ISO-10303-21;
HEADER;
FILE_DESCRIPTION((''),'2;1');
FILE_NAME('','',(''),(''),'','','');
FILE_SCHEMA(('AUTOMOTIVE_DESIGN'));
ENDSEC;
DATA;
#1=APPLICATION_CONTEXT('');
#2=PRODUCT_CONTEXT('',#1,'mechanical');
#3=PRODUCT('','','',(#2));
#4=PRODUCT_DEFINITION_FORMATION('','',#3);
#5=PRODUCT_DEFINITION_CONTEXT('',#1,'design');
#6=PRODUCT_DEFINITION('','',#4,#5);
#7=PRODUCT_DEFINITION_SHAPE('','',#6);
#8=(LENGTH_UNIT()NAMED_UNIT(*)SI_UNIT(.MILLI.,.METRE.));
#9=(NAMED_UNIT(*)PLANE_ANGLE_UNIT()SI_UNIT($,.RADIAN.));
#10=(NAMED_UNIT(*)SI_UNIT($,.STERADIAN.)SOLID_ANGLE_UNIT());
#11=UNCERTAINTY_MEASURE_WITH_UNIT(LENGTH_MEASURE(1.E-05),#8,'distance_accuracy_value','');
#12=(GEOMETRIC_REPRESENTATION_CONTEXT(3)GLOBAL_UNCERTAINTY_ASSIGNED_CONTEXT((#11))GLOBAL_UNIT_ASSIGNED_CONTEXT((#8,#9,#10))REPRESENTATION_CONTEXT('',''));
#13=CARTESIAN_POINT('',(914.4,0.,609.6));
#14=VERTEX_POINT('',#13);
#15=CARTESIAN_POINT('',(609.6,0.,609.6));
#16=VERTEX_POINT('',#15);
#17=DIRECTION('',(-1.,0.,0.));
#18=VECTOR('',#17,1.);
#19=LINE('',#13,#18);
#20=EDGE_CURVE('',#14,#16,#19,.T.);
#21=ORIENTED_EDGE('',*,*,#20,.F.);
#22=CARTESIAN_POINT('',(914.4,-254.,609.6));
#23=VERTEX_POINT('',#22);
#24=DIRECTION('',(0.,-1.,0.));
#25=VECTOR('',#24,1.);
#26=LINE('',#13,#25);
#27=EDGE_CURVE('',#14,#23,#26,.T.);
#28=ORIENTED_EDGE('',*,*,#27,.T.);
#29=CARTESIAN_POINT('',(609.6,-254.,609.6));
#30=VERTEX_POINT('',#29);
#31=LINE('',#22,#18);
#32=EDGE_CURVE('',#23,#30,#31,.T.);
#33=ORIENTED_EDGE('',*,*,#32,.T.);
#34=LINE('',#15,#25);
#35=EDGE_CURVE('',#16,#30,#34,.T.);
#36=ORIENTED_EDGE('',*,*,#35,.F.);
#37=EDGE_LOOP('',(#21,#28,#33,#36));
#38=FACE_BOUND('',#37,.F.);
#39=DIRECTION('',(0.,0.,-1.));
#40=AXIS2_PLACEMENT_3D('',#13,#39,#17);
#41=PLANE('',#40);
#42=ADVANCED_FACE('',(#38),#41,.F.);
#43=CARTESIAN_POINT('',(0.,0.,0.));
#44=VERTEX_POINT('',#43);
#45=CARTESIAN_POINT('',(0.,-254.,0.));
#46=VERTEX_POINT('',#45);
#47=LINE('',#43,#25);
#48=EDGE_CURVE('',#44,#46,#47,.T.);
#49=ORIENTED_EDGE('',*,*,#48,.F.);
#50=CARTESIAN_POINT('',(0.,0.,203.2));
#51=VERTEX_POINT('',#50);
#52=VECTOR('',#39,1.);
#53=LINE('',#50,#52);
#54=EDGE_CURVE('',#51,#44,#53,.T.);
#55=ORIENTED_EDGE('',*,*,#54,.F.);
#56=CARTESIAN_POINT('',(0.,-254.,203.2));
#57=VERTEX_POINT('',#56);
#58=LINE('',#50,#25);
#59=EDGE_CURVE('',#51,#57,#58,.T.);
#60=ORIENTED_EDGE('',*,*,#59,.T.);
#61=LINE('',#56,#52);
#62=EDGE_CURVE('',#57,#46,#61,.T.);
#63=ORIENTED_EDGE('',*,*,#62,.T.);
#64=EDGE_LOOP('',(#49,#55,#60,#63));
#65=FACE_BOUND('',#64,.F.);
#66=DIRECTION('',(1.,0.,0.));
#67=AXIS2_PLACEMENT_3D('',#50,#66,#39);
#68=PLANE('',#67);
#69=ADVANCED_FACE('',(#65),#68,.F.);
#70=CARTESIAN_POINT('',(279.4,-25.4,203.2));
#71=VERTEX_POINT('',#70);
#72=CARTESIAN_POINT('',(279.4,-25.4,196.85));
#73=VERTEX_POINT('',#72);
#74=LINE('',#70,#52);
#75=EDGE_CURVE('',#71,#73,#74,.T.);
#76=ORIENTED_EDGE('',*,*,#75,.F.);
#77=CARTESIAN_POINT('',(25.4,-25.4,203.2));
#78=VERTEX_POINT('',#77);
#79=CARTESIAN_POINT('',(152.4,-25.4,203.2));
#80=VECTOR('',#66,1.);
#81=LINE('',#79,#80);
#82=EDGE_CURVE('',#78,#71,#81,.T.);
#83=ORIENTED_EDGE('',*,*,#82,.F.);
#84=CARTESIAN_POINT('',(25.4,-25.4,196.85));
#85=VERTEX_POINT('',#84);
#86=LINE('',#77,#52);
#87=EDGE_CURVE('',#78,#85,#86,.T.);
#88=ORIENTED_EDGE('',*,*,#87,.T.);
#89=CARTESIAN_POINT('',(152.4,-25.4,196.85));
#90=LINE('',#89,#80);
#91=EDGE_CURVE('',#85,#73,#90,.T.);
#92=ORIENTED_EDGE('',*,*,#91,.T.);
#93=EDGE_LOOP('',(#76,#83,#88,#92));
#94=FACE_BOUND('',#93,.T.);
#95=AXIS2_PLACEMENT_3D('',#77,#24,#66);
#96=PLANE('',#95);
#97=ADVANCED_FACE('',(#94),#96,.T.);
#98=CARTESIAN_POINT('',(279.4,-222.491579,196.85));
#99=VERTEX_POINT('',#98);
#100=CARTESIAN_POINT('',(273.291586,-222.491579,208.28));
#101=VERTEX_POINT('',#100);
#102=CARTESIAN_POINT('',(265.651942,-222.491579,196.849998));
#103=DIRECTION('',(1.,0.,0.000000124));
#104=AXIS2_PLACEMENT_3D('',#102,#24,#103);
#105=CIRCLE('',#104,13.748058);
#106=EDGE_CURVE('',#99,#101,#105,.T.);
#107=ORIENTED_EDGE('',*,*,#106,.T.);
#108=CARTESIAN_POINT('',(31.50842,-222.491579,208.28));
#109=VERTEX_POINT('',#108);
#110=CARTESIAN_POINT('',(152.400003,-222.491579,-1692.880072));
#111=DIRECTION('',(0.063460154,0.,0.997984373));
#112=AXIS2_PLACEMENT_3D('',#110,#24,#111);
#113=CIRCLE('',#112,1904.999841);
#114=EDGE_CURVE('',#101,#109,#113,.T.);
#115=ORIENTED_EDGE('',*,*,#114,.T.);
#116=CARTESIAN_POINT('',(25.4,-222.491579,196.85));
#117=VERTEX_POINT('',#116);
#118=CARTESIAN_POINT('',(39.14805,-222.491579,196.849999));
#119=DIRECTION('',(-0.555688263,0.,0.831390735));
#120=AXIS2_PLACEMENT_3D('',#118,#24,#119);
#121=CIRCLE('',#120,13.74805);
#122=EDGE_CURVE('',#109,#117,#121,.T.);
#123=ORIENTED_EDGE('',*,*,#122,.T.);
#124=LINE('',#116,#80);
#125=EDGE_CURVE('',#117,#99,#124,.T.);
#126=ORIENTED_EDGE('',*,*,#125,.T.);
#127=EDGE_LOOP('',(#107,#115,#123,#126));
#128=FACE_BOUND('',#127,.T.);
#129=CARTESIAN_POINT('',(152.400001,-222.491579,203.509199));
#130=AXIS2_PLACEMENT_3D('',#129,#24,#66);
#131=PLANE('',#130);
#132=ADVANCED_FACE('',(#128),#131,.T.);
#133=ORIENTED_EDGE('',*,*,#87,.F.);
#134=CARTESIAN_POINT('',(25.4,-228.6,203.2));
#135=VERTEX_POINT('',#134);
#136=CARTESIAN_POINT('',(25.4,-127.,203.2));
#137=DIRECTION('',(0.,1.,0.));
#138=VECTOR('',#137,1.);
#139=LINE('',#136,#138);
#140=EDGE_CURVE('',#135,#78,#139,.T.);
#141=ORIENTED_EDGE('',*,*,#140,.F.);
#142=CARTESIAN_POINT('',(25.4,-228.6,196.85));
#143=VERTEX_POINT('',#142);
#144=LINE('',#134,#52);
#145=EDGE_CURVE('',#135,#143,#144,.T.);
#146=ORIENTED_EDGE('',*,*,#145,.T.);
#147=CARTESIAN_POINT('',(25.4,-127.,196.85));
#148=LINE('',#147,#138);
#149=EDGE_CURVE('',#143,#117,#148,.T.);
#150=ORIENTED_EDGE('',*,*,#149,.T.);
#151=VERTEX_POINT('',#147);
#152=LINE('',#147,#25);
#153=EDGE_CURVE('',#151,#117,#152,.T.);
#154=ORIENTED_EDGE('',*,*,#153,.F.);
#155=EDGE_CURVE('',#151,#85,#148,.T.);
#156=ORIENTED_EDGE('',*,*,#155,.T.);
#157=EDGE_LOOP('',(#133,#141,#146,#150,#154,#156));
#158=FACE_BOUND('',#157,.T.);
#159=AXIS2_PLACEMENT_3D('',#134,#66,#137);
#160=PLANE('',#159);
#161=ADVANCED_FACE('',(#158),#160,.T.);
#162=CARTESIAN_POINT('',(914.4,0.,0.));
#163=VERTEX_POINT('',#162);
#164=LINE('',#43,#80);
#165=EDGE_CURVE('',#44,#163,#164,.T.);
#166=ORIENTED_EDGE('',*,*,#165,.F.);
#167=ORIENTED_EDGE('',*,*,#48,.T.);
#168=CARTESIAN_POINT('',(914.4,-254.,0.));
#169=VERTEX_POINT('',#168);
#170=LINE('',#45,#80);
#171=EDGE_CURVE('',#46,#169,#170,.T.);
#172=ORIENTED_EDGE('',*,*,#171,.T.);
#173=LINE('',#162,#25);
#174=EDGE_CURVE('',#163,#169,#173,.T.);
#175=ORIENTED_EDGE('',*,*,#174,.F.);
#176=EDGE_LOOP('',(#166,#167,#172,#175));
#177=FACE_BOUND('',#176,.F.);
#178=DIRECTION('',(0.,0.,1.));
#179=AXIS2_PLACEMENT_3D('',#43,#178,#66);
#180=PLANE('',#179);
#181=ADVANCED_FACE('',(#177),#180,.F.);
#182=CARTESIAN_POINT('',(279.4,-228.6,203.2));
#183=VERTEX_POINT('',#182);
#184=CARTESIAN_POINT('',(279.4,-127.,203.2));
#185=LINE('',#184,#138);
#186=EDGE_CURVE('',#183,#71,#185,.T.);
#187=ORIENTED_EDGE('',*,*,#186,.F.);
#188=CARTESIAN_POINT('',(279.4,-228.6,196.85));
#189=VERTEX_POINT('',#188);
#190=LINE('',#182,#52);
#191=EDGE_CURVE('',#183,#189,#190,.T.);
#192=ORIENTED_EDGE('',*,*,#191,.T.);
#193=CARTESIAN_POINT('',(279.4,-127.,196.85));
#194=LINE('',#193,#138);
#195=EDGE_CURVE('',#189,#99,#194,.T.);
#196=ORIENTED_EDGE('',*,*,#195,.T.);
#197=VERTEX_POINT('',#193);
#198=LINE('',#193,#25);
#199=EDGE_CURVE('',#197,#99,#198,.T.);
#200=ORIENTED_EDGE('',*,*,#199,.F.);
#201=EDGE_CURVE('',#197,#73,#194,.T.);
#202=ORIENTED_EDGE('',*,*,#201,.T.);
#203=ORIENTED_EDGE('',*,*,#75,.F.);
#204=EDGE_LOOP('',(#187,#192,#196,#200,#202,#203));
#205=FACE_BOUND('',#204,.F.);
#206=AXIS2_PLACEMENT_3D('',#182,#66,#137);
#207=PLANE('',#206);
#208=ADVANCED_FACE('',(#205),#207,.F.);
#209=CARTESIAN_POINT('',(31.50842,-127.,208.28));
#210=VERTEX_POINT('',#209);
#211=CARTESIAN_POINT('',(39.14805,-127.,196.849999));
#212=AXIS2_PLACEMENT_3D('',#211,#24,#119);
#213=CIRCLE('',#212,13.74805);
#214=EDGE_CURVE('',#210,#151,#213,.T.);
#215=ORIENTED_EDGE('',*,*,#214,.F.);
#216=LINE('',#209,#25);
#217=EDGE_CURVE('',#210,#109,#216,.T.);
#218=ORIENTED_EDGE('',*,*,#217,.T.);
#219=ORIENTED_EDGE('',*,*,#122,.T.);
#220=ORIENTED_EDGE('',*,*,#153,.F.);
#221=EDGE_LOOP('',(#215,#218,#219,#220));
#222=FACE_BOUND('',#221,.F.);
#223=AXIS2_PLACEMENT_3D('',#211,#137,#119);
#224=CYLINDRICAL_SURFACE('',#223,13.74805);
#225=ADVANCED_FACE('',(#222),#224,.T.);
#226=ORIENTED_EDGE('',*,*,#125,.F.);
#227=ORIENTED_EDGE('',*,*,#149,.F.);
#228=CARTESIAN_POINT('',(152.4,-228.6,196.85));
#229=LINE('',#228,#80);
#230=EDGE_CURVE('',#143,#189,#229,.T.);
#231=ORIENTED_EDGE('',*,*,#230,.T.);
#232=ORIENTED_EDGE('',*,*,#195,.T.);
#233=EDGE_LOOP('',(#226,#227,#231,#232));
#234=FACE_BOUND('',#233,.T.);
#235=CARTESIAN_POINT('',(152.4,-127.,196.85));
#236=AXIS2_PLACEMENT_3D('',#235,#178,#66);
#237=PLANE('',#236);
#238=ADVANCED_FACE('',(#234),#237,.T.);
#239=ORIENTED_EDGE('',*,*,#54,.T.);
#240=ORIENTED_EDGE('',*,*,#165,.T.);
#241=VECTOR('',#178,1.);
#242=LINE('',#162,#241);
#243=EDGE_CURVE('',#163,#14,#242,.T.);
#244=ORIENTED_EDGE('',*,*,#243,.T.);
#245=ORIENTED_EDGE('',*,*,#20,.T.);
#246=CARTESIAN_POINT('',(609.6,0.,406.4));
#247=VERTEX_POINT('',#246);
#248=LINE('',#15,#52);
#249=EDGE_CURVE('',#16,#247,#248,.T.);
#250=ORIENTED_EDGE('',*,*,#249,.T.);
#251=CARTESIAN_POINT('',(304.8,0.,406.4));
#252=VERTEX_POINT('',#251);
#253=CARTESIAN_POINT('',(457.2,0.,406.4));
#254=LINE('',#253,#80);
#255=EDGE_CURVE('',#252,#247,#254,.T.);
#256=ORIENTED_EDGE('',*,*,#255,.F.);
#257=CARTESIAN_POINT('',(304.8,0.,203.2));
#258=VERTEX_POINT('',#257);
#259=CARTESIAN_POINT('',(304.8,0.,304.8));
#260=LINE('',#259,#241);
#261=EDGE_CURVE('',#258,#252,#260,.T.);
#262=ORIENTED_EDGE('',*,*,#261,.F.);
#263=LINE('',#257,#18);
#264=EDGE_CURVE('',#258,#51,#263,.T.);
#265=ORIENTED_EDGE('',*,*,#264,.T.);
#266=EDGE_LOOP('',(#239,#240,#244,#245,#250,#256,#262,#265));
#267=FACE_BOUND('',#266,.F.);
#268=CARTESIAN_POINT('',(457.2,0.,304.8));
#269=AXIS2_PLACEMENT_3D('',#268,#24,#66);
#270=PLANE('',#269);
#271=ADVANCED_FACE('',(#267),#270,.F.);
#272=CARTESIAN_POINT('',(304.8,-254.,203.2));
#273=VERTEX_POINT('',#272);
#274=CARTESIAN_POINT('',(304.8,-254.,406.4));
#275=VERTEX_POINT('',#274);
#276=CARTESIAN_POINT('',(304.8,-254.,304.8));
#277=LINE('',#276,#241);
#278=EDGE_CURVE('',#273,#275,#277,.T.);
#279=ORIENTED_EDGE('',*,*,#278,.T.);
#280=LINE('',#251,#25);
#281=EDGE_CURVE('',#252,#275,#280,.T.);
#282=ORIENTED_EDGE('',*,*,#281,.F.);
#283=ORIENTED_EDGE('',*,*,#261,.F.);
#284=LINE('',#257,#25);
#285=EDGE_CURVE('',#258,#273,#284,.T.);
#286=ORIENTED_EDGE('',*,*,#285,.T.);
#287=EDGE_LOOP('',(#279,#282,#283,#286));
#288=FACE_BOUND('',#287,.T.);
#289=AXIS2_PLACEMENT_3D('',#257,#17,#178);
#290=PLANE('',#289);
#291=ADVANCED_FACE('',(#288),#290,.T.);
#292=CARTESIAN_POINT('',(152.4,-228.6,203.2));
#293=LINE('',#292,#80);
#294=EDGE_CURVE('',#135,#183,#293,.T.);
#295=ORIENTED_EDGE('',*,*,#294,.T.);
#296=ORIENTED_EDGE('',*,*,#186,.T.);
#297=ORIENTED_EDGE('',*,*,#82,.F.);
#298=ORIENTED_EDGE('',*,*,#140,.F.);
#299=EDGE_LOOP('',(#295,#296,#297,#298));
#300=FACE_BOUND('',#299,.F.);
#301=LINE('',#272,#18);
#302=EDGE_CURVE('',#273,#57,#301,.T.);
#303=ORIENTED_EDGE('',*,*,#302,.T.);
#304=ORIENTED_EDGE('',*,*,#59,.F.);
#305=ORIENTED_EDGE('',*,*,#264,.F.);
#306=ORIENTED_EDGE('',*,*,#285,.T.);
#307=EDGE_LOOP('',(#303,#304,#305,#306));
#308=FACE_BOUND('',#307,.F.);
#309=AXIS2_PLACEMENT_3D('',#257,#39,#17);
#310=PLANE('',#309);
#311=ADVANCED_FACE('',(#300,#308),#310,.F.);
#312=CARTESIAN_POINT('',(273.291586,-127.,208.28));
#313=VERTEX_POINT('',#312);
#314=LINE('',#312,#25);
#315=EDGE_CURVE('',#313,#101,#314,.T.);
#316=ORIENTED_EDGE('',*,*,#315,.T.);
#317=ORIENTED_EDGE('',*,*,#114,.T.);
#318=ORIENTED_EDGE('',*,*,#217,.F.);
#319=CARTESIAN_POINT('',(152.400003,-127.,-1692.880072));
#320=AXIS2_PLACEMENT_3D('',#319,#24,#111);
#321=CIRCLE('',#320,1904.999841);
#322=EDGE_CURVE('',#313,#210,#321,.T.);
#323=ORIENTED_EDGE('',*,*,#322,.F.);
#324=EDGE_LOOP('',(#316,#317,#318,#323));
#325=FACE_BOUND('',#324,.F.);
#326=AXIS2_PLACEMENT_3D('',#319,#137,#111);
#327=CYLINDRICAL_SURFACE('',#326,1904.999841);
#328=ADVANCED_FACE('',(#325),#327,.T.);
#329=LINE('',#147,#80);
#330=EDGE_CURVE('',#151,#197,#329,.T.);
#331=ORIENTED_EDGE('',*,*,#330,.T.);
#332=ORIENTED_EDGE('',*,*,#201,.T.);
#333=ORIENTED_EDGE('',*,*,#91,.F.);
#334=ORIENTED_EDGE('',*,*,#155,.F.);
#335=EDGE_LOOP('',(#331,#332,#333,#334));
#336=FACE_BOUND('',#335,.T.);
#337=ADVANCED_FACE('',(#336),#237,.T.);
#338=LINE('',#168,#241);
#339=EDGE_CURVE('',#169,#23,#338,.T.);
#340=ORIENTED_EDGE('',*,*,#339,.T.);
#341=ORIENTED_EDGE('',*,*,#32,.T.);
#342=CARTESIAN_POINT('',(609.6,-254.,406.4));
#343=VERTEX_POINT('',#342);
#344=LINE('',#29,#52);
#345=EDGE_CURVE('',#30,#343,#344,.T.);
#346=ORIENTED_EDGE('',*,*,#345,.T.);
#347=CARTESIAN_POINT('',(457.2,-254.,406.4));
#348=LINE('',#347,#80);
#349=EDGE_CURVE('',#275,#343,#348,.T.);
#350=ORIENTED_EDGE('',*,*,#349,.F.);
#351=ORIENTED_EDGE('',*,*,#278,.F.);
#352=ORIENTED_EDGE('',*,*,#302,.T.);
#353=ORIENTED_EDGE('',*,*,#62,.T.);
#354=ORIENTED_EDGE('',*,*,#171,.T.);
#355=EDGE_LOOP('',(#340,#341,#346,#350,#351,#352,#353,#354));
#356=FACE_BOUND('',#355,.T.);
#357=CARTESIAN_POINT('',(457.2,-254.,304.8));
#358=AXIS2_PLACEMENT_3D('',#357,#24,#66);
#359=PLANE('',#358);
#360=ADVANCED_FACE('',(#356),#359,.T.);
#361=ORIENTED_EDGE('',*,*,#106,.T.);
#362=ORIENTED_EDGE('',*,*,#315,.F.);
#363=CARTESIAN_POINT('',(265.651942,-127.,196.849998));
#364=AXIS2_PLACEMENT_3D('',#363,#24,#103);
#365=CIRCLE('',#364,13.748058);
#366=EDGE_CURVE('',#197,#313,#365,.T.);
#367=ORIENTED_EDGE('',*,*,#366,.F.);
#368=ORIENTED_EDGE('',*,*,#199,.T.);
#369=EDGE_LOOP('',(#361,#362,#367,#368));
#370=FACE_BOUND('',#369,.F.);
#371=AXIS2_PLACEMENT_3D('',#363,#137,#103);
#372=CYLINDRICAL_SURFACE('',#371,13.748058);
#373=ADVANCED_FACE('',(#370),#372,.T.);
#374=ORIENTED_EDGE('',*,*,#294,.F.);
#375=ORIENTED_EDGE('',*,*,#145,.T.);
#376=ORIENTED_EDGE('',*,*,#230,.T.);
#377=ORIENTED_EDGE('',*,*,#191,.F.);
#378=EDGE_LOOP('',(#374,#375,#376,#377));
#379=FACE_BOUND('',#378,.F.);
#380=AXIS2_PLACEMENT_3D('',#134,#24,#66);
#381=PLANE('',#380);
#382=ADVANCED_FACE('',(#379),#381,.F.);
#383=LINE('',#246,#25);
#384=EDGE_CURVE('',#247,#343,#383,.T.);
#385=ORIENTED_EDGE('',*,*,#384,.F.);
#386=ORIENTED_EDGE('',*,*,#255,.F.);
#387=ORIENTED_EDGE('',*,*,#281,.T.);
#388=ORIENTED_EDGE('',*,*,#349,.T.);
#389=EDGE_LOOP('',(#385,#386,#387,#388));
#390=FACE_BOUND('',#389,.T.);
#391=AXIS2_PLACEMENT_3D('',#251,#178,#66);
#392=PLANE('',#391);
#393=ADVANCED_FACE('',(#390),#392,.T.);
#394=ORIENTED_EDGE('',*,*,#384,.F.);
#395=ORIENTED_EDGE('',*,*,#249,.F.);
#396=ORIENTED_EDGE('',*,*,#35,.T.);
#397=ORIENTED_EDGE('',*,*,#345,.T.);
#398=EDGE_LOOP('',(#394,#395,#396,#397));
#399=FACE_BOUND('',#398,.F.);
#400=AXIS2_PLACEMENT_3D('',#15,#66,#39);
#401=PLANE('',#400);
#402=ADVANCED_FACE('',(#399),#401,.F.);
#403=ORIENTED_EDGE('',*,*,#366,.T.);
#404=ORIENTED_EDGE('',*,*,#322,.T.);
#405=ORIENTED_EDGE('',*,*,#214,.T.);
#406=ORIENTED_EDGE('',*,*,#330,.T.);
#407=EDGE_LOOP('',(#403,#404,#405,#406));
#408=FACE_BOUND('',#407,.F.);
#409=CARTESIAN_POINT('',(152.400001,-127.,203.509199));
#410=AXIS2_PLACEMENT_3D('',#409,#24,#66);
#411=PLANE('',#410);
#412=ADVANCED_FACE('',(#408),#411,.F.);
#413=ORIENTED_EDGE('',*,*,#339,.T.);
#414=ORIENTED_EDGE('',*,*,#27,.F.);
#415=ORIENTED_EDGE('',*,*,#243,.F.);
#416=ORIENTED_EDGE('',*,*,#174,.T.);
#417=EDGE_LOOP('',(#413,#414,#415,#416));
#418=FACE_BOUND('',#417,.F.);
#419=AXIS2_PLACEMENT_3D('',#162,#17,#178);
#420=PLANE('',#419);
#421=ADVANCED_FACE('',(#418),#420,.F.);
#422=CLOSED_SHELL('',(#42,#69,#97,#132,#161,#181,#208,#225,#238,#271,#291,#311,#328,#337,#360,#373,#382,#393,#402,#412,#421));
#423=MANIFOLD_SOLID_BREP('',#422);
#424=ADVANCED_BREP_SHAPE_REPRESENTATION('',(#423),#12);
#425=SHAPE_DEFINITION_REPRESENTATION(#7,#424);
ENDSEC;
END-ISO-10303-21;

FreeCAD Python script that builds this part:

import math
import FreeCAD as App
import Part
import Sketcher
Q = App.Units.Quantity

doc = App.newDocument("Part")
body = doc.addObject("PartDesign::Body", "Body")

sketch1 = body.newObject("Sketcher::SketchObject", "Sketch")
sketch1.AttachmentSupport = (doc.getObject("XZ_Plane"), [""])
sketch1.MapMode = "FlatFace"
sketch1.addGeometry([
    Part.LineSegment(App.Vector(305, 406, 0), App.Vector(305, 203, 0)),
    Part.LineSegment(App.Vector(305, 203, 0), App.Vector(0, 203, 0)),
    Part.LineSegment(App.Vector(0, 203, 0), App.Vector(0, 0, 0)),
    Part.LineSegment(App.Vector(0, 0, 0), App.Vector(914, 0, 0)),
    Part.LineSegment(App.Vector(914, 0, 0), App.Vector(914, 610, 0)),
    Part.LineSegment(App.Vector(914, 610, 0), App.Vector(610, 610, 0)),
    Part.LineSegment(App.Vector(610, 610, 0), App.Vector(610, 406, 0)),
    Part.LineSegment(App.Vector(610, 406, 0), App.Vector(305, 406, 0)),
], False)
sketch1.addConstraint([
    Sketcher.Constraint("Coincident", 0, 2, 1, 1),
    Sketcher.Constraint("Coincident", 1, 2, 2, 1),
    Sketcher.Constraint("Coincident", 2, 2, 3, 1),
    Sketcher.Constraint("Coincident", 3, 2, 4, 1),
    Sketcher.Constraint("Coincident", 4, 2, 5, 1),
    Sketcher.Constraint("Coincident", 5, 2, 6, 1),
    Sketcher.Constraint("Coincident", 6, 2, 7, 1),
    Sketcher.Constraint("Coincident", 7, 2, 0, 1),
    Sketcher.Constraint("Vertical", 0),
    Sketcher.Constraint("Horizontal", 1),
    Sketcher.Constraint("Vertical", 2),
    Sketcher.Constraint("Horizontal", 3),
    Sketcher.Constraint("Vertical", 4),
    Sketcher.Constraint("Horizontal", 5),
    Sketcher.Constraint("Vertical", 6),
    Sketcher.Constraint("Horizontal", 7),
    Sketcher.Constraint("Coincident", 2, 2, -1, 1),
    Sketcher.Constraint("Equal", 1, 5),
    Sketcher.Constraint("Equal", 5, 7),
    Sketcher.Constraint("Equal", 0, 2),
    Sketcher.Constraint("Equal", 2, 6),
    Sketcher.Constraint("DistanceX", 1, 2, 1, 1, Q("12 in")),
    Sketcher.Constraint("DistanceY", 0, 2, 0, 1, Q("8 in")),
])
pad1 = body.newObject("PartDesign::Pad", "Pad")
pad1.Profile = sketch1
pad1.Length = Q("10 in")

sketch2 = body.newObject("Sketcher::SketchObject", "Sketch001")
sketch2.AttachmentSupport = (doc.getObject("XY_Plane"), [""])
sketch2.MapMode = "FlatFace"
sketch2.AttachmentOffset = App.Placement(App.Vector(0, 0, 8 * 25.4), App.Rotation())
sketch2.addGeometry([
    Part.LineSegment(App.Vector(25, -25, 0), App.Vector(25, -229, 0)),
    Part.LineSegment(App.Vector(25, -229, 0), App.Vector(279, -229, 0)),
    Part.LineSegment(App.Vector(279, -229, 0), App.Vector(279, -25, 0)),
    Part.LineSegment(App.Vector(279, -25, 0), App.Vector(25, -25, 0)),
], False)
sketch2.addConstraint([
    Sketcher.Constraint("Coincident", 0, 2, 1, 1),
    Sketcher.Constraint("Coincident", 1, 2, 2, 1),
    Sketcher.Constraint("Coincident", 2, 2, 3, 1),
    Sketcher.Constraint("Coincident", 3, 2, 0, 1),
    Sketcher.Constraint("Vertical", 0),
    Sketcher.Constraint("Horizontal", 1),
    Sketcher.Constraint("Vertical", 2),
    Sketcher.Constraint("Horizontal", 3),
    Sketcher.Constraint("DistanceX", 1, 1, 1, 2, Q("10 in")),
    Sketcher.Constraint("DistanceY", 0, 2, 0, 1, Q("8 in")),
    Sketcher.Constraint("DistanceX", -1, 1, 0, 2, Q("1 in")),
    Sketcher.Constraint("DistanceY", 0, 2, -1, 1, Q("9 in")),
])
pocket1 = body.newObject("PartDesign::Pocket", "Pocket")
pocket1.Profile = sketch2
pocket1.Length = Q("0.25 in")

sketch3 = body.newObject("Sketcher::SketchObject", "Sketch002")
sketch3.AttachmentSupport = (doc.getObject("XZ_Plane"), [""])
sketch3.MapMode = "FlatFace"
sketch3.AttachmentOffset = App.Placement(App.Vector(0, 0, 5 * 25.4), App.Rotation())
sketch3.addGeometry([
    Part.ArcOfCircle(Part.Circle(App.Vector(152, -1693, 0), App.Vector(0, 0, 1), 1905), math.radians(86.36), math.radians(93.64)),
    Part.ArcOfCircle(Part.Circle(App.Vector(39, 197, 0), App.Vector(0, 0, 1), 14), math.radians(124), math.radians(180)),
    Part.LineSegment(App.Vector(25, 197, 0), App.Vector(279, 197, 0)),
    Part.ArcOfCircle(Part.Circle(App.Vector(266, 197, 0), App.Vector(0, 0, 1), 14), math.radians(0), math.radians(56)),
], False)
sketch3.addConstraint([
    Sketcher.Constraint("Coincident", 0, 2, 1, 1),
    Sketcher.Constraint("Coincident", 1, 2, 2, 1),
    Sketcher.Constraint("Coincident", 2, 2, 3, 1),
    Sketcher.Constraint("Coincident", 3, 2, 0, 1),
    Sketcher.Constraint("Horizontal", 2),
    Sketcher.Constraint("Horizontal", 1, 3, 3, 3),
    Sketcher.Constraint("Horizontal", 3, 3, 1, 2),
    Sketcher.Constraint("DistanceX", 2, 1, 2, 2, Q("10 in")),
    Sketcher.Constraint("DistanceX", -1, 1, 0, 3, Q("6.0000001 in")),
    Sketcher.Constraint("DistanceX", -1, 1, 1, 2, Q("1 in")),
    Sketcher.Constraint("DistanceY", -1, 1, 0, 2, Q("8.2 in")),
    Sketcher.Constraint("DistanceY", -1, 1, 3, 2, Q("8.2 in")),
    Sketcher.Constraint("DistanceY", -1, 1, 1, 3, Q("7.7499999 in")),
    Sketcher.Constraint("Radius", 0, Q("1904.999841 mm")),
    Sketcher.Constraint("Radius", 1, Q("13.74805 mm")),
])
pad2 = body.newObject("PartDesign::Pad", "Pad001")
pad2.Profile = sketch3
pad2.Length = 95.491579

doc.recompute()
